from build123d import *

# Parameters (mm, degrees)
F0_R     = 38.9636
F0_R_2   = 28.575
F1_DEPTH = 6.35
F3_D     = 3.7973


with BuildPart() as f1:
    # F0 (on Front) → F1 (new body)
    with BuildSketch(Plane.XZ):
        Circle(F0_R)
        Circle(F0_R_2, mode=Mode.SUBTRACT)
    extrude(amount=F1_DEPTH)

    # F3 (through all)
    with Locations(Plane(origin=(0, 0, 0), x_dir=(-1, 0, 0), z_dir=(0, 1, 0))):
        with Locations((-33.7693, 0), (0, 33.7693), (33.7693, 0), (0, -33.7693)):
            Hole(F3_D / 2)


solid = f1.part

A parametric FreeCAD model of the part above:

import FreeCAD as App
import Part
import Sketcher
Q = App.Units.Quantity

doc = App.newDocument("Part")
params = doc.addObject("Spreadsheet::Sheet", "Params")
for row, (alias, value) in enumerate([
    ("sketch1_diameter", "2.25 in"),
    ("sketch1_diameter2", "3.068 in"),
    ("pad1_length", "0.25 in"),
    ("hole_diameter", "0.1495 in"),
], start=1):
    params.set(f"A{row}", alias)
    params.set(f"B{row}", "=" + value)
    params.setAlias(f"B{row}", alias)

body = doc.addObject("PartDesign::Body", "Body")

# Sketch on XZ plane
sketch1 = body.newObject("Sketcher::SketchObject", "Sketch")
sketch1.AttachmentSupport = (doc.getObject("XZ_Plane"), [""])
sketch1.MapMode = "FlatFace"
sketch1.addGeometry(Part.Circle(App.Vector(0, 0, 0), App.Vector(0, 0, 1), 39), False)
sketch1.addGeometry(Part.Circle(App.Vector(0, 0, 0), App.Vector(0, 0, 1), 29), False)
sketch1.addConstraint(Sketcher.Constraint("Coincident", 0, 3, -1, 1))
sketch1.addConstraint(Sketcher.Constraint("Coincident", 1, 3, -1, 1))
sketch1.addConstraint(Sketcher.Constraint("Diameter", 1, Q("2.25 in")))
sketch1.addConstraint(Sketcher.Constraint("Diameter", 0, Q("3.068 in")))
sketch1.setExpression("Constraints[2]", "Params.sketch1_diameter")
sketch1.setExpression("Constraints[3]", "Params.sketch1_diameter2")
pad1 = body.newObject("PartDesign::Pad", "Pad")
pad1.Profile = sketch1
pad1.setExpression("Length", "Params.pad1_length")

# Sketch on XZ plane
sketch2 = body.newObject("Sketcher::SketchObject", "Sketch001")
sketch2.AttachmentSupport = (doc.getObject("XZ_Plane"), [""])
sketch2.MapMode = "FlatFace"
sketch2.addGeometry(Part.Circle(App.Vector(33.8, 0, 0), App.Vector(0, 0, 1), 1.9), False)
sketch2.addGeometry(Part.Circle(App.Vector(0, 33.8, 0), App.Vector(0, 0, 1), 1.9), False)
sketch2.addGeometry(Part.Circle(App.Vector(-33.8, 0, 0), App.Vector(0, 0, 1), 1.9), False)
sketch2.addGeometry(Part.Circle(App.Vector(0, -33.8, 0), App.Vector(0, 0, 1), 1.9), False)
sketch2.addConstraint(Sketcher.Constraint("Equal", 0, 1))
sketch2.addConstraint(Sketcher.Constraint("Equal", 1, 2))
sketch2.addConstraint(Sketcher.Constraint("Equal", 2, 3))
sketch2.addConstraint(Sketcher.Constraint("Symmetric", 0, 3, 2, 3, -1, 1))
sketch2.addConstraint(Sketcher.Constraint("Symmetric", 1, 3, 3, 3, -1, 1))
sketch2.addConstraint(Sketcher.Constraint("PointOnObject", 0, 3, -1))
sketch2.addConstraint(Sketcher.Constraint("PointOnObject", 1, 3, -2))
sketch2.addConstraint(Sketcher.Constraint("Diameter", 0, Q("0.1495 in")))
sketch2.addConstraint(Sketcher.Constraint("DistanceX", 2, 3, 0, 3, Q("2.659 in")))
sketch2.addConstraint(Sketcher.Constraint("DistanceY", 3, 3, 1, 3, Q("2.659 in")))
doc.recompute()
hole = body.newObject("PartDesign::Hole", "Hole")
hole.Profile = sketch2
hole.ThreadType = "None"
hole.setExpression("Diameter", "Params.hole_diameter")
hole.DepthType = "ThroughAll"
hole.Reversed = True

doc.recompute()
